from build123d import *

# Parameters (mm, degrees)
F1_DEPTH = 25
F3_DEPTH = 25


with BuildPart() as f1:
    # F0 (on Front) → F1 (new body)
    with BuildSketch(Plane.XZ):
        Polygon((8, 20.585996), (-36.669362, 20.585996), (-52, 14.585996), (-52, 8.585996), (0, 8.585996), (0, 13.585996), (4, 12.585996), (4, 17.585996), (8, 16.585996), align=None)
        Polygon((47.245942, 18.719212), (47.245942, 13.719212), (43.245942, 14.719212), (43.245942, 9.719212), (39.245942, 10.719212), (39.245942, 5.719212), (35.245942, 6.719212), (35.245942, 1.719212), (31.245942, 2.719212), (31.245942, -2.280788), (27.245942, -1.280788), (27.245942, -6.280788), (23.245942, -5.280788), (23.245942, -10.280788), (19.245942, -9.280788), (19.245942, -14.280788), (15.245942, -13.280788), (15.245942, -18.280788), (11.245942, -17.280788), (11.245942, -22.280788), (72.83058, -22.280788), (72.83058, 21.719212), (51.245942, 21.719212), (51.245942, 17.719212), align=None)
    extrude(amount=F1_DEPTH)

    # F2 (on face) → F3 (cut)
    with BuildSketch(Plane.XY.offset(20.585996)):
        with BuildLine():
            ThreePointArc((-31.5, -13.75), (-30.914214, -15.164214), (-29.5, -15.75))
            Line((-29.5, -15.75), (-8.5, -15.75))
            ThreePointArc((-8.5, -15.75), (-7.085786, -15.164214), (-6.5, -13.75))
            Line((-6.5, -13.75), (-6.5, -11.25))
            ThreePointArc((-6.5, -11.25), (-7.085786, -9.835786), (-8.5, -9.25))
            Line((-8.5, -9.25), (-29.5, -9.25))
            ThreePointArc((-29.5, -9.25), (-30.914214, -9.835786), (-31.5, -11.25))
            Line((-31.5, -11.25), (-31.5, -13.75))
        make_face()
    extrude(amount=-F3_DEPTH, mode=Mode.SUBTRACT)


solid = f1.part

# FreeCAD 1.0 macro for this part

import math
import FreeCAD as App
import Part
import Sketcher
from FreeCAD import Vector

doc = App.newDocument("Part")
params = doc.addObject("Spreadsheet::Sheet", "Params")
for row, (alias, value) in enumerate([
    ("sketch1_width", "52 mm"),
    ("sketch1_height", "6 mm"),
    ("sketch1_height2", "5 mm"),
    ("sketch1_height3", "4 mm"),
    ("sketch1_height4", "44 mm"),
    ("pad1_length", "25 mm"),
    ("sketch2_radius", "1.999999 mm"),
    ("sketch2_width", "21 mm"),
    ("sketch2_height", "2.5 mm"),
    ("pocket1_length", "25 mm"),
], start=1):
    params.set(f"A{row}", alias)
    params.set(f"B{row}", "=" + value)
    params.setAlias(f"B{row}", alias)

body = doc.addObject("PartDesign::Body", "Body")
body.AllowCompound = True

# Sketch on XZ plane
sketch1 = doc.addObject("Sketcher::SketchObject", "Sketch")
body.addObject(sketch1)
sketch1.AttachmentSupport = (doc.XZ_Plane, [""])
sketch1.MapMode = "FlatFace"
sketch1.addGeometry([
    Part.LineSegment(Vector(8, 20.6, 0), Vector(-36.7, 20.6, 0)),  # 0
    Part.LineSegment(Vector(-36.7, 20.6, 0), Vector(-52, 14.6, 0)),  # 1
    Part.LineSegment(Vector(-52, 14.6, 0), Vector(-52, 8.6, 0)),  # 2
    Part.LineSegment(Vector(-52, 8.6, 0), Vector(0, 8.6, 0)),  # 3
    Part.LineSegment(Vector(0, 8.6, 0), Vector(0, 13.6, 0)),  # 4
    Part.LineSegment(Vector(0, 13.6, 0), Vector(4, 12.6, 0)),  # 5
    Part.LineSegment(Vector(4, 12.6, 0), Vector(4, 17.6, 0)),  # 6
    Part.LineSegment(Vector(4, 17.6, 0), Vector(8, 16.6, 0)),  # 7
    Part.LineSegment(Vector(8, 16.6, 0), Vector(8, 20.6, 0)),  # 8
    Part.LineSegment(Vector(47.2, 18.7, 0), Vector(47.2, 13.7, 0)),  # 9
    Part.LineSegment(Vector(47.2, 13.7, 0), Vector(43.2, 14.7, 0)),  # 10
    Part.LineSegment(Vector(43.2, 14.7, 0), Vector(43.2, 9.7, 0)),  # 11
    Part.LineSegment(Vector(43.2, 9.7, 0), Vector(39.2, 10.7, 0)),  # 12
    Part.LineSegment(Vector(39.2, 10.7, 0), Vector(39.2, 5.7, 0)),  # 13
    Part.LineSegment(Vector(39.2, 5.7, 0), Vector(35.2, 6.7, 0)),  # 14
    Part.LineSegment(Vector(35.2, 6.7, 0), Vector(35.2, 1.7, 0)),  # 15
    Part.LineSegment(Vector(35.2, 1.7, 0), Vector(31.2, 2.7, 0)),  # 16
    Part.LineSegment(Vector(31.2, 2.7, 0), Vector(31.2, -2.3, 0)),  # 17
    Part.LineSegment(Vector(31.2, -2.3, 0), Vector(27.2, -1.3, 0)),  # 18
    Part.LineSegment(Vector(27.2, -1.3, 0), Vector(27.2, -6.3, 0)),  # 19
    Part.LineSegment(Vector(27.2, -6.3, 0), Vector(23.2, -5.3, 0)),  # 20
    Part.LineSegment(Vector(23.2, -5.3, 0), Vector(23.2, -10.3, 0)),  # 21
    Part.LineSegment(Vector(23.2, -10.3, 0), Vector(19.2, -9.3, 0)),  # 22
    Part.LineSegment(Vector(19.2, -9.3, 0), Vector(19.2, -14.3, 0)),  # 23
    Part.LineSegment(Vector(19.2, -14.3, 0), Vector(15.2, -13.3, 0)),  # 24
    Part.LineSegment(Vector(15.2, -13.3, 0), Vector(15.2, -18.3, 0)),  # 25
    Part.LineSegment(Vector(15.2, -18.3, 0), Vector(11.2, -17.3, 0)),  # 26
    Part.LineSegment(Vector(11.2, -17.3, 0), Vector(11.2, -22.3, 0)),  # 27
    Part.LineSegment(Vector(11.2, -22.3, 0), Vector(72.8, -22.3, 0)),  # 28
    Part.LineSegment(Vector(72.8, -22.3, 0), Vector(72.8, 21.7, 0)),  # 29
    Part.LineSegment(Vector(72.8, 21.7, 0), Vector(51.2, 21.7, 0)),  # 30
    Part.LineSegment(Vector(51.2, 21.7, 0), Vector(51.2, 17.7, 0)),  # 31
    Part.LineSegment(Vector(51.2, 17.7, 0), Vector(47.2, 18.7, 0)),  # 32
], False)
sketch1.addConstraint([
    Sketcher.Constraint("Coincident", 0, 2, 1, 1),
    Sketcher.Constraint("Coincident", 1, 2, 2, 1),
    Sketcher.Constraint("Coincident", 2, 2, 3, 1),
    Sketcher.Constraint("Coincident", 3, 2, 4, 1),
    Sketcher.Constraint("Coincident", 4, 2, 5, 1),
    Sketcher.Constraint("Coincident", 5, 2, 6, 1),
    Sketcher.Constraint("Coincident", 6, 2, 7, 1),
    Sketcher.Constraint("Coincident", 7, 2, 8, 1),
    Sketcher.Constraint("Coincident", 8, 2, 0, 1),
    Sketcher.Constraint("Coincident", 9, 2, 10, 1),
    Sketcher.Constraint("Coincident", 10, 2, 11, 1),
    Sketcher.Constraint("Coincident", 11, 2, 12, 1),
    Sketcher.Constraint("Coincident", 12, 2, 13, 1),
    Sketcher.Constraint("Coincident", 13, 2, 14, 1),
    Sketcher.Constraint("Coincident", 14, 2, 15, 1),
    Sketcher.Constraint("Coincident", 15, 2, 16, 1),
    Sketcher.Constraint("Coincident", 16, 2, 17, 1),
    Sketcher.Constraint("Coincident", 17, 2, 18, 1),
    Sketcher.Constraint("Coincident", 18, 2, 19, 1),
    Sketcher.Constraint("Coincident", 19, 2, 20, 1),
    Sketcher.Constraint("Coincident", 20, 2, 21, 1),
    Sketcher.Constraint("Coincident", 21, 2, 22, 1),
    Sketcher.Constraint("Coincident", 22, 2, 23, 1),
    Sketcher.Constraint("Coincident", 23, 2, 24, 1),
    Sketcher.Constraint("Coincident", 24, 2, 25, 1),
    Sketcher.Constraint("Coincident", 25, 2, 26, 1),
    Sketcher.Constraint("Coincident", 26, 2, 27, 1),
    Sketcher.Constraint("Coincident", 27, 2, 28, 1),
    Sketcher.Constraint("Coincident", 28, 2, 29, 1),
    Sketcher.Constraint("Coincident", 29, 2, 30, 1),
    Sketcher.Constraint("Coincident", 30, 2, 31, 1),
    Sketcher.Constraint("Coincident", 31, 2, 32, 1),
    Sketcher.Constraint("Coincident", 32, 2, 9, 1),
    Sketcher.Constraint("Horizontal", 0),
    Sketcher.Constraint("Vertical", 2),
    Sketcher.Constraint("Horizontal", 3),
    Sketcher.Constraint("Vertical", 4),
    Sketcher.Constraint("Vertical", 6),
    Sketcher.Constraint("Vertical", 8),
    Sketcher.Constraint("Vertical", 9),
    Sketcher.Constraint("Vertical", 11),
    Sketcher.Constraint("Vertical", 13),
    Sketcher.Constraint("Vertical", 15),
    Sketcher.Constraint("Vertical", 17),
    Sketcher.Constraint("Vertical", 19),
    Sketcher.Constraint("Vertical", 21),
    Sketcher.Constraint("Vertical", 23),
    Sketcher.Constraint("Vertical", 25),
    Sketcher.Constraint("Vertical", 27),
    Sketcher.Constraint("Horizontal", 28),
    Sketcher.Constraint("Vertical", 29),
    Sketcher.Constraint("Horizontal", 30),
    Sketcher.Constraint("Vertical", 31),
    Sketcher.Constraint("PointOnObject", 3, 2, -2),
    Sketcher.Constraint("Parallel", 5, 7),
    Sketcher.Constraint("Parallel", 7, 10),
    Sketcher.Constraint("Parallel", 10, 12),
    Sketcher.Constraint("Parallel", 12, 14),
    Sketcher.Constraint("Parallel", 14, 16),
    Sketcher.Constraint("Parallel", 16, 18),
    Sketcher.Constraint("Parallel", 18, 20),
    Sketcher.Constraint("Parallel", 20, 22),
    Sketcher.Constraint("Parallel", 22, 24),
    Sketcher.Constraint("Parallel", 24, 26),
    Sketcher.Constraint("Parallel", 26, 32),
    Sketcher.Constraint("Equal", 4, 6),
    Sketcher.Constraint("Equal", 6, 9),
    Sketcher.Constraint("Equal", 9, 11),
    Sketcher.Constraint("Equal", 11, 13),
    Sketcher.Constraint("Equal", 13, 15),
    Sketcher.Constraint("Equal", 15, 17),
    Sketcher.Constraint("Equal", 17, 19),
    Sketcher.Constraint("Equal", 19, 21),
    Sketcher.Constraint("Equal", 21, 23),
    Sketcher.Constraint("Equal", 23, 25),
    Sketcher.Constraint("Equal", 25, 27),
    Sketcher.Constraint("Equal", 8, 31),
    Sketcher.Constraint("Equal", 5, 7),
    Sketcher.Constraint("Equal", 7, 10),
    Sketcher.Constraint("Equal", 10, 12),
    Sketcher.Constraint("Equal", 12, 14),
    Sketcher.Constraint("Equal", 14, 16),
    Sketcher.Constraint("Equal", 16, 18),
    Sketcher.Constraint("Equal", 18, 20),
    Sketcher.Constraint("Equal", 20, 22),
    Sketcher.Constraint("Equal", 22, 24),
    Sketcher.Constraint("Equal", 24, 26),
    Sketcher.Constraint("Equal", 26, 32),
    Sketcher.Constraint("DistanceX", 3, 1, 3, 2, 52.0),
    Sketcher.Constraint("DistanceY", 2, 2, 2, 1, 6.0),
    Sketcher.Constraint("DistanceY", 4, 1, 4, 2, 5.0),
    Sketcher.Constraint("DistanceY", 8, 1, 8, 2, 4.0),
    Sketcher.Constraint("DistanceY", 29, 1, 29, 2, 44.0),
    Sketcher.Constraint("DistanceX", -1, 1, 5, 2, 4.0),
    Sketcher.Constraint("DistanceX", 0, 2, 0, 1, 44.669362),
    Sketcher.Constraint("DistanceX", 28, 1, 28, 2, 61.584638),
    Sketcher.Constraint("DistanceY", -1, 1, 13, 2, 5.719212),
    Sketcher.Constraint("DistanceX", -1, 1, 16, 2, 31.245942),
    Sketcher.Constraint("DistanceY", -1, 1, 0, 2, 20.585996),
])
sketch1.setExpression("Constraints[88]", "Params.sketch1_width")
sketch1.setExpression("Constraints[89]", "Params.sketch1_height")
sketch1.setExpression("Constraints[90]", "Params.sketch1_height2")
sketch1.setExpression("Constraints[91]", "Params.sketch1_height3")
sketch1.setExpression("Constraints[92]", "Params.sketch1_height4")
pad1 = doc.addObject("PartDesign::Pad", "Pad")
body.addObject(pad1)
pad1.Profile = sketch1
pad1.setExpression("Length", "Params.pad1_length")

# Sketch on XY plane
sketch2 = doc.addObject("Sketcher::SketchObject", "Sketch001")
body.addObject(sketch2)
sketch2.AttachmentSupport = (doc.XY_Plane, [""])
sketch2.MapMode = "FlatFace"
sketch2.AttachmentOffset = App.Placement(Vector(0, 0, 20.585996), App.Rotation())
sketch2.addGeometry([
    Part.ArcOfCircle(Part.Circle(Vector(-29.5, -13.8, 0), Vector(0, 0, 1), 2), math.radians(180), math.radians(270)),  # 0
    Part.LineSegment(Vector(-29.5, -15.8, 0), Vector(-8.5, -15.8, 0)),  # 1
    Part.ArcOfCircle(Part.Circle(Vector(-8.5, -13.8, 0), Vector(0, 0, 1), 2), math.radians(-90), math.radians(0)),  # 2
    Part.LineSegment(Vector(-6.5, -13.8, 0), Vector(-6.5, -11.2, 0)),  # 3
    Part.ArcOfCircle(Part.Circle(Vector(-8.5, -11.2, 0), Vector(0, 0, 1), 2), math.radians(0), math.radians(90)),  # 4
    Part.LineSegment(Vector(-8.5, -9.2, 0), Vector(-29.5, -9.2, 0)),  # 5
    Part.ArcOfCircle(Part.Circle(Vector(-29.5, -11.2, 0), Vector(0, 0, 1), 2), math.radians(90), math.radians(180)),  # 6
    Part.LineSegment(Vector(-31.5, -11.2, 0), Vector(-31.5, -13.8, 0)),  # 7
], False)
sketch2.addConstraint([
    Sketcher.Constraint("Tangent", 0, 2, 1, 1),
    Sketcher.Constraint("Tangent", 1, 2, 2, 1),
    Sketcher.Constraint("Tangent", 2, 2, 3, 1),
    Sketcher.Constraint("Tangent", 3, 2, 4, 1),
    Sketcher.Constraint("Tangent", 4, 2, 5, 1),
    Sketcher.Constraint("Tangent", 5, 2, 6, 1),
    Sketcher.Constraint("Tangent", 6, 2, 7, 1),
    Sketcher.Constraint("Tangent", 7, 2, 0, 1),
    Sketcher.Constraint("Horizontal", 1),
    Sketcher.Constraint("Vertical", 3),
    Sketcher.Constraint("Horizontal", 5),
    Sketcher.Constraint("Vertical", 7),
    Sketcher.Constraint("Equal", 0, 2),
    Sketcher.Constraint("Equal", 2, 4),
    Sketcher.Constraint("Equal", 4, 6),
    Sketcher.Constraint("Radius", 0, 1.999999),
    Sketcher.Constraint("DistanceX", 1, 1, 1, 2, 21.0),
    Sketcher.Constraint("DistanceY", 3, 1, 3, 2, 2.5),
    Sketcher.Constraint("DistanceX", 0, 3, -1, 1, 29.500001),
    Sketcher.Constraint("DistanceY", 0, 3, -1, 1, 13.750001),
])
sketch2.setExpression("Constraints[15]", "Params.sketch2_radius")
sketch2.setExpression("Constraints[16]", "Params.sketch2_width")
sketch2.setExpression("Constraints[17]", "Params.sketch2_height")
pocket1 = doc.addObject("PartDesign::Pocket", "Pocket")
body.addObject(pocket1)
pocket1.Profile = sketch2
pocket1.setExpression("Length", "Params.pocket1_length")

doc.recompute()
